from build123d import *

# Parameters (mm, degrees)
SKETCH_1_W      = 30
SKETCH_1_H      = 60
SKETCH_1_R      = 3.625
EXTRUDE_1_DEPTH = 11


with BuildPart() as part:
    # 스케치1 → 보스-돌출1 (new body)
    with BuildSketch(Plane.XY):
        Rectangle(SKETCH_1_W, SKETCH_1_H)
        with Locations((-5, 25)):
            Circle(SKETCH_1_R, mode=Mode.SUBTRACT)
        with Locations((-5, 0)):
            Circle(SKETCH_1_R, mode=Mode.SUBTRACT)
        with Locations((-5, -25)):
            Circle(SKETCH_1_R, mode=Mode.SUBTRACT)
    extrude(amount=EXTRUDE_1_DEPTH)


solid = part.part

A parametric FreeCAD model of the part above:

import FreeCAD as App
import Part
import Sketcher
from FreeCAD import Vector

doc = App.newDocument("Part")
body = doc.addObject("PartDesign::Body", "Body")

# Sketch on XY plane
sketch1 = body.newObject("Sketcher::SketchObject", "Sketch")
sketch1.AttachmentSupport = (doc.getObject("XY_Plane"), [""])
sketch1.MapMode = "FlatFace"
sketch1.addGeometry([
    Part.LineSegment(Vector(-15, 30, 0), Vector(-15, -30, 0)),  # 0
    Part.LineSegment(Vector(-15, -30, 0), Vector(15, -30, 0)),  # 1
    Part.LineSegment(Vector(15, -30, 0), Vector(15, 30, 0)),  # 2
    Part.LineSegment(Vector(15, 30, 0), Vector(-15, 30, 0)),  # 3
    Part.Circle(Vector(-5, -25, 0), Vector(0, 0, 1), 3.625),  # 4
    Part.Circle(Vector(-5, 0, 0), Vector(0, 0, 1), 3.625),  # 5
    Part.Circle(Vector(-5, 25, 0), Vector(0, 0, 1), 3.625),  # 6
], False)
sketch1.addConstraint([
    Sketcher.Constraint("Coincident", 0, 2, 1, 1),
    Sketcher.Constraint("Coincident", 1, 2, 2, 1),
    Sketcher.Constraint("Coincident", 2, 2, 3, 1),
    Sketcher.Constraint("Coincident", 3, 2, 0, 1),
    Sketcher.Constraint("Vertical", 0),
    Sketcher.Constraint("Horizontal", 1),
    Sketcher.Constraint("Vertical", 2),
    Sketcher.Constraint("Horizontal", 3),
    Sketcher.Constraint("Equal", 4, 5),
    Sketcher.Constraint("Equal", 5, 6),
    Sketcher.Constraint("Symmetric", 0, 2, 2, 2, -1, 1),
    Sketcher.Constraint("Symmetric", 4, 3, 6, 3, -1),
    Sketcher.Constraint("PointOnObject", 5, 3, -1),
    Sketcher.Constraint("Vertical", 4, 3, 5, 3),
    Sketcher.Constraint("Diameter", 4, 7.25),
    Sketcher.Constraint("DistanceX", 1, 1, 1, 2, 30.0),
    Sketcher.Constraint("DistanceY", 0, 2, 0, 1, 60.0),
    Sketcher.Constraint("DistanceX", 4, 3, -1, 1, 5.0),
    Sketcher.Constraint("DistanceY", 4, 3, -1, 1, 25.0),
])
pad1 = body.newObject("PartDesign::Pad", "Pad")
pad1.Profile = sketch1
pad1.Length = 11

doc.recompute()
